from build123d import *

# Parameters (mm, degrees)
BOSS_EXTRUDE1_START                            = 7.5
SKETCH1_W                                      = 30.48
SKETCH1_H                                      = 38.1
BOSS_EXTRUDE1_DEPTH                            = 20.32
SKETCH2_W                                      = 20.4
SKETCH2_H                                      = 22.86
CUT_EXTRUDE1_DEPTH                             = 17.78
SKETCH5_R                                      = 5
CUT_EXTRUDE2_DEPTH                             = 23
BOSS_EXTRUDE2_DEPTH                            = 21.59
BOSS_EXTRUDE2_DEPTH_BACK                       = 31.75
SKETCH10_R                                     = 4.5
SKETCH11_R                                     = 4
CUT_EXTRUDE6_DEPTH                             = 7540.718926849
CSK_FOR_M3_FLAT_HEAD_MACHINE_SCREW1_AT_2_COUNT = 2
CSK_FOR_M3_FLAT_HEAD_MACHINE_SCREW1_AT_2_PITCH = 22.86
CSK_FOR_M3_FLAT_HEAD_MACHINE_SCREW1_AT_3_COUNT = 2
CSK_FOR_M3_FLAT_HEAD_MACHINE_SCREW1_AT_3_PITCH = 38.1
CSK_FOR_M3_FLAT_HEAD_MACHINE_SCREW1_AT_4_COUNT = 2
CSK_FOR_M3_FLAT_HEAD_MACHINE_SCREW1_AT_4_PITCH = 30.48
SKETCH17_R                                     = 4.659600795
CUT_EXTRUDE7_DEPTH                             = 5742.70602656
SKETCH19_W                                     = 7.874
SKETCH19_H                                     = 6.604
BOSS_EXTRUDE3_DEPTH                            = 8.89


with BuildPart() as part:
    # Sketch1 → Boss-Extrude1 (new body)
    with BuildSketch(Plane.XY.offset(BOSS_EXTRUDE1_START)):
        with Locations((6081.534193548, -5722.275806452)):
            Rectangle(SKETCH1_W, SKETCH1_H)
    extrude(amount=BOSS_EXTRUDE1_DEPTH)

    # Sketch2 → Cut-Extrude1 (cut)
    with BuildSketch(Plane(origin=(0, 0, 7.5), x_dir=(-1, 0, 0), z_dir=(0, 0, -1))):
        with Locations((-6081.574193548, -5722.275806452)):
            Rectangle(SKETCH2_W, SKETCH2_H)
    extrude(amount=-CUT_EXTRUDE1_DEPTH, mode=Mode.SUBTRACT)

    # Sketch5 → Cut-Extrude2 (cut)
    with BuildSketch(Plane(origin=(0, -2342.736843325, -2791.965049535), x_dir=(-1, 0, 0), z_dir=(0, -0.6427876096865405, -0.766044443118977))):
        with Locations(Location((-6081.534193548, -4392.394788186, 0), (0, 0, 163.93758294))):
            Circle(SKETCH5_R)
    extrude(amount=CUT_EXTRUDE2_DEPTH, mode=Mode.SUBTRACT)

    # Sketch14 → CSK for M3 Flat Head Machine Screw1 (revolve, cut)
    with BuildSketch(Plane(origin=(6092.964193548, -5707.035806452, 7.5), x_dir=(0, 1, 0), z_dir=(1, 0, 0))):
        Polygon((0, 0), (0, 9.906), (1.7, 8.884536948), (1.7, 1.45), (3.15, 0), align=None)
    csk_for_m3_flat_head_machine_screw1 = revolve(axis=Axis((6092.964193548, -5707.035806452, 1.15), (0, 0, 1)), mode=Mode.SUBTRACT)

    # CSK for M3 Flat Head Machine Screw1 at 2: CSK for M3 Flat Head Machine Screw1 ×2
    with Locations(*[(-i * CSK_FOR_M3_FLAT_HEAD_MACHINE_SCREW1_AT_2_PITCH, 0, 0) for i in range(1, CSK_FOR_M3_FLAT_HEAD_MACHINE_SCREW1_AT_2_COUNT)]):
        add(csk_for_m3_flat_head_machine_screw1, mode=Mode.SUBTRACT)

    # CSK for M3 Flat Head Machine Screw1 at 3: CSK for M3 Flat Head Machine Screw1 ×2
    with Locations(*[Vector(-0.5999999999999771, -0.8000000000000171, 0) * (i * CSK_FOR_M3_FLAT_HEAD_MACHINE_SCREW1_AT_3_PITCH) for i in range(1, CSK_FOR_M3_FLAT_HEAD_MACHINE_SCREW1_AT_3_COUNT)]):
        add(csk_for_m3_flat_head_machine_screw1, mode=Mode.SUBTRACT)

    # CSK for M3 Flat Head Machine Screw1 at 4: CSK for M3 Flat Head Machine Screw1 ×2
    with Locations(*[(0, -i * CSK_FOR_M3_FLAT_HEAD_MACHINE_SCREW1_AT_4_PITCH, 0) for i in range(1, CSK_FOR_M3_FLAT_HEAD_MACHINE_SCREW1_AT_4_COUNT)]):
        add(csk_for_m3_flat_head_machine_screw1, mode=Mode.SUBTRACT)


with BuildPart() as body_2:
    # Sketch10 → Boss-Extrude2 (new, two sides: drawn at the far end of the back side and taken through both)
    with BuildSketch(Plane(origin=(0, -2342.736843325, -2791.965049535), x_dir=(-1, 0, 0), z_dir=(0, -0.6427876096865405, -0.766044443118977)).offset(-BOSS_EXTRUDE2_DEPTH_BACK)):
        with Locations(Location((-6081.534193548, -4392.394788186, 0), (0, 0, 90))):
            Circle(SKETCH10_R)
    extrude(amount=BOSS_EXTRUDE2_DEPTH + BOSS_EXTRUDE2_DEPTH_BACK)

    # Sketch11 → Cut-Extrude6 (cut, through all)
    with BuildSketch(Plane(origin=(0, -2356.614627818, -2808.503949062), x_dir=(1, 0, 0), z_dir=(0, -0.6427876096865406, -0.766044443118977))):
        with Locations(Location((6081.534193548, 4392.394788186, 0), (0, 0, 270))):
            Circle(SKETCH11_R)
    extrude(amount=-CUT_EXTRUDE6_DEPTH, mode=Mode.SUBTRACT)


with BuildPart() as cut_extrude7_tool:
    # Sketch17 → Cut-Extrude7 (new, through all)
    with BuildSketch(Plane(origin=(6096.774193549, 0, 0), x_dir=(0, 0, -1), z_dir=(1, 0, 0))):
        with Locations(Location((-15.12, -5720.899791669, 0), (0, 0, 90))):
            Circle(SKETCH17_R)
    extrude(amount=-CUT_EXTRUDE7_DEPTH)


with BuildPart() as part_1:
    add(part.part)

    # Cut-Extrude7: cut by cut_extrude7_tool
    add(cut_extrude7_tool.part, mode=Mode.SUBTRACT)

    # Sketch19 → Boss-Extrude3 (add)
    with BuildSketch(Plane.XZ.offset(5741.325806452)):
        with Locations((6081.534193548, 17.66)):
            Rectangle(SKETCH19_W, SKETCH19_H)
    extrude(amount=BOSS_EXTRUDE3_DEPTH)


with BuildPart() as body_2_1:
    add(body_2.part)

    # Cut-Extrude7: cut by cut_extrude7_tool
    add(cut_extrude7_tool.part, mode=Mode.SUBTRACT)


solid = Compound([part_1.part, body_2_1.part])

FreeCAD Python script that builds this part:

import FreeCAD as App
import Part
import Sketcher
from FreeCAD import Vector
Q = App.Units.Quantity

doc = App.newDocument("Part")
body = doc.addObject("PartDesign::Body", "Body")

# Sketch on XY plane
sketch1 = body.newObject("Sketcher::SketchObject", "Sketch")
sketch1.AttachmentSupport = (doc.getObject("XY_Plane"), [""])
sketch1.MapMode = "FlatFace"
sketch1.AttachmentOffset = App.Placement(Vector(0, 0, 7.5), App.Rotation())
sketch1.addGeometry(Part.LineSegment(Vector(6066, -5703, 0), Vector(6066, -5741, 0)), False)
sketch1.addGeometry(Part.LineSegment(Vector(6066, -5741, 0), Vector(6097, -5741, 0)), False)
sketch1.addGeometry(Part.LineSegment(Vector(6097, -5741, 0), Vector(6097, -5703, 0)), False)
sketch1.addGeometry(Part.LineSegment(Vector(6097, -5703, 0), Vector(6066, -5703, 0)), False)
sketch1.addConstraint(Sketcher.Constraint("Coincident", 0, 2, 1, 1))
sketch1.addConstraint(Sketcher.Constraint("Coincident", 1, 2, 2, 1))
sketch1.addConstraint(Sketcher.Constraint("Coincident", 2, 2, 3, 1))
sketch1.addConstraint(Sketcher.Constraint("Coincident", 3, 2, 0, 1))
sketch1.addConstraint(Sketcher.Constraint("Vertical", 0))
sketch1.addConstraint(Sketcher.Constraint("Horizontal", 1))
sketch1.addConstraint(Sketcher.Constraint("Vertical", 2))
sketch1.addConstraint(Sketcher.Constraint("Horizontal", 3))
sketch1.addConstraint(Sketcher.Constraint("DistanceX", 1, 1, 1, 2, Q("1.2 in")))
sketch1.addConstraint(Sketcher.Constraint("DistanceY", 0, 2, 0, 1, Q("1.5 in")))
sketch1.addConstraint(Sketcher.Constraint("DistanceX", -1, 1, 0, 2, Q("6066.294194 mm")))
sketch1.addConstraint(Sketcher.Constraint("DistanceY", 0, 2, -1, 1, Q("5741.325806 mm")))
pad1 = body.newObject("PartDesign::Pad", "Pad")
pad1.Profile = sketch1
pad1.Length = Q("0.8 in")

# Sketch on XY plane
sketch2 = body.newObject("Sketcher::SketchObject", "Sketch001")
sketch2.AttachmentSupport = (doc.getObject("XY_Plane"), [""])
sketch2.MapMode = "FlatFace"
sketch2.AttachmentOffset = App.Placement(Vector(0, 0, 7.5), App.Rotation())
sketch2.addGeometry(Part.LineSegment(Vector(6092, -5711, 0), Vector(6092, -5734, 0)), False)
sketch2.addGeometry(Part.LineSegment(Vector(6092, -5734, 0), Vector(6071, -5734, 0)), False)
sketch2.addGeometry(Part.LineSegment(Vector(6071, -5734, 0), Vector(6071, -5711, 0)), False)
sketch2.addGeometry(Part.LineSegment(Vector(6071, -5711, 0), Vector(6092, -5711, 0)), False)
sketch2.addConstraint(Sketcher.Constraint("Coincident", 0, 2, 1, 1))
sketch2.addConstraint(Sketcher.Constraint("Coincident", 1, 2, 2, 1))
sketch2.addConstraint(Sketcher.Constraint("Coincident", 2, 2, 3, 1))
sketch2.addConstraint(Sketcher.Constraint("Coincident", 3, 2, 0, 1))
sketch2.addConstraint(Sketcher.Constraint("Vertical", 0))
sketch2.addConstraint(Sketcher.Constraint("Horizontal", 1))
sketch2.addConstraint(Sketcher.Constraint("Vertical", 2))
sketch2.addConstraint(Sketcher.Constraint("Horizontal", 3))
sketch2.addConstraint(Sketcher.Constraint("DistanceY", 0, 2, 0, 1, Q("0.9 in")))
sketch2.addConstraint(Sketcher.Constraint("DistanceX", 1, 2, 1, 1, Q("20.4 mm")))
sketch2.addConstraint(Sketcher.Constraint("DistanceX", -1, 1, 0, 2, Q("6091.774194 mm")))
sketch2.addConstraint(Sketcher.Constraint("DistanceY", 0, 2, -1, 1, Q("5733.705806 mm")))
pocket1 = body.newObject("PartDesign::Pocket", "Pocket")
pocket1.Profile = sketch2
pocket1.Length = Q("0.7 in")
pocket1.Reversed = True

# Sketch on an angled plane
sketch3 = body.newObject("Sketcher::SketchObject", "Sketch002")
sketch3.Placement = App.Placement(Vector(0, -2342.736843, -2791.96505), App.Rotation(Vector(-1, 0, 0), Vector(0, 0.766044443, -0.64278761), Vector(0, -0.64278761, -0.766044443), "ZXY"))
sketch3.addGeometry(Part.Circle(Vector(-6082, -4392, 0), Vector(0, 0, 1), 5), False)
sketch3.addConstraint(Sketcher.Constraint("Diameter", 0, Q("10 mm")))
sketch3.addConstraint(Sketcher.Constraint("DistanceY", 0, 3, -1, 1, Q("4392.394789 mm")))
sketch3.addConstraint(Sketcher.Constraint("DistanceX", 0, 3, -1, 1, Q("6081.534194 mm")))
pocket2 = body.newObject("PartDesign::Pocket", "Pocket001")
pocket2.Profile = sketch3
pocket2.Length = 23
pocket2.Reversed = True

# Sketch on YZ plane
sketch4 = body.newObject("Sketcher::SketchObject", "Sketch003")
sketch4.AttachmentSupport = (doc.getObject("YZ_Plane"), [""])
sketch4.MapMode = "FlatFace"
sketch4.AttachmentOffset = App.Placement(Vector(0, 0, 6092.964194), App.Rotation())
sketch4.addGeometry(Part.LineSegment(Vector(-5707, 17.4, 0), Vector(-5707, 7.5, 0)), False)
sketch4.addGeometry(Part.LineSegment(Vector(-5707, 7.5, 0), Vector(-5703.9, 7.5, 0)), False)
sketch4.addGeometry(Part.LineSegment(Vector(-5703.9, 7.5, 0), Vector(-5705.3, 8.9, 0)), False)
sketch4.addGeometry(Part.LineSegment(Vector(-5705.3, 8.9, 0), Vector(-5705.3, 16.4, 0)), False)
sketch4.addGeometry(Part.LineSegment(Vector(-5705.3, 16.4, 0), Vector(-5707, 17.4, 0)), False)
sketch4.addGeometry(Part.LineSegment(Vector(-5707, 7.5, 0), Vector(-5707, 17.4, 0)), True)  # axis
sketch4.addConstraint(Sketcher.Constraint("Coincident", 0, 2, 1, 1))
sketch4.addConstraint(Sketcher.Constraint("Coincident", 1, 2, 2, 1))
sketch4.addConstraint(Sketcher.Constraint("Coincident", 2, 2, 3, 1))
sketch4.addConstraint(Sketcher.Constraint("Coincident", 3, 2, 4, 1))
sketch4.addConstraint(Sketcher.Constraint("Coincident", 4, 2, 0, 1))
sketch4.addConstraint(Sketcher.Constraint("Vertical", 0))
sketch4.addConstraint(Sketcher.Constraint("Horizontal", 1))
sketch4.addConstraint(Sketcher.Constraint("Vertical", 3))
sketch4.addConstraint(Sketcher.Constraint("Vertical", 5))
sketch4.addConstraint(Sketcher.Constraint("Coincident", 5, 1, 0, 2))
sketch4.addConstraint(Sketcher.Constraint("Equal", 0, 5))
sketch4.addConstraint(Sketcher.Constraint("Angle", 2, Q("135 deg")))
sketch4.addConstraint(Sketcher.Constraint("Angle", 4, Q("149 deg")))
sketch4.addConstraint(Sketcher.Constraint("DistanceY", 0, 2, 0, 1, Q("0.39 in")))
sketch4.addConstraint(Sketcher.Constraint("DistanceX", 1, 1, 1, 2, Q("3.15 mm")))
sketch4.addConstraint(Sketcher.Constraint("DistanceY", -1, 1, 0, 2, Q("7.5 mm")))
sketch4.addConstraint(Sketcher.Constraint("DistanceY", -1, 1, 2, 2, Q("8.95 mm")))
sketch4.addConstraint(Sketcher.Constraint("DistanceX", 0, 2, -1, 1, Q("5707.035806 mm")))
groove = body.newObject("PartDesign::Groove", "Groove")
groove.Profile = sketch4
groove.ReferenceAxis = (sketch4, ["Axis0"])
groove.Angle = 360
doc.recompute()

linearpattern = body.newObject("PartDesign::LinearPattern", "LinearPattern")
linearpattern.Originals = [groove]
linearpattern.Direction = (doc.getObject("X_Axis"), [""])
linearpattern.Mode = "offset"
linearpattern.Offset = Q("0.9 in")
linearpattern.Occurrences = 2
linearpattern.Reversed = True
body.Tip = linearpattern
doc.recompute()

datumline = body.newObject("PartDesign::Line", "DatumLine")
datumline.Placement = App.Placement(Vector(0, 0, 0), App.Rotation(Vector(0, 0, 1), Vector(-0.6, -0.8, 0)))
linearpattern2 = body.newObject("PartDesign::LinearPattern", "LinearPattern001")
linearpattern2.Originals = [groove]
linearpattern2.Direction = (datumline, [""])
linearpattern2.Mode = "offset"
linearpattern2.Offset = Q("1.5 in")
linearpattern2.Occurrences = 2
body.Tip = linearpattern2
doc.recompute()

linearpattern3 = body.newObject("PartDesign::LinearPattern", "LinearPattern002")
linearpattern3.Originals = [groove]
linearpattern3.Direction = (doc.getObject("Y_Axis"), [""])
linearpattern3.Mode = "offset"
linearpattern3.Offset = Q("1.2 in")
linearpattern3.Occurrences = 2
linearpattern3.Reversed = True
body.Tip = linearpattern3
body2 = doc.addObject("PartDesign::Body", "Body001")

# Sketch on an angled plane
sketch5 = body2.newObject("Sketcher::SketchObject", "Sketch004")
sketch5.Placement = App.Placement(Vector(0, -2342.736843, -2791.96505), App.Rotation(Vector(-1, 0, 0), Vector(0, 0.766044443, -0.64278761), Vector(0, -0.64278761, -0.766044443), "ZXY"))
sketch5.addGeometry(Part.Circle(Vector(-6081.5, -4392.4, 0), Vector(0, 0, 1), 4.5), False)
sketch5.addConstraint(Sketcher.Constraint("Diameter", 0, Q("9 mm")))
sketch5.addConstraint(Sketcher.Constraint("DistanceY", 0, 3, -1, 1, Q("4392.394789 mm")))
sketch5.addConstraint(Sketcher.Constraint("DistanceX", 0, 3, -1, 1, Q("6081.534194 mm")))
pad2 = body2.newObject("PartDesign::Pad", "Pad001")
pad2.Profile = sketch5
pad2.Type = "TwoLengths"
pad2.Length = Q("0.85 in")
pad2.Length2 = Q("1.25 in")

# Sketch on an angled plane
sketch6 = body2.newObject("Sketcher::SketchObject", "Sketch005")
sketch6.Placement = App.Placement(Vector(0, -2356.614628, -2808.503949), App.Rotation(Vector(1, 0, 0), Vector(0, -0.766044443, 0.64278761), Vector(0, -0.64278761, -0.766044443), "ZXY"))
sketch6.addGeometry(Part.Circle(Vector(6081.5, 4392.4, 0), Vector(0, 0, 1), 4), False)
sketch6.addConstraint(Sketcher.Constraint("Diameter", 0, Q("8 mm")))
sketch6.addConstraint(Sketcher.Constraint("DistanceY", -1, 1, 0, 3, Q("4392.394789 mm")))
sketch6.addConstraint(Sketcher.Constraint("DistanceX", -1, 1, 0, 3, Q("6081.534194 mm")))
pocket3 = body2.newObject("PartDesign::Pocket", "Pocket002")
pocket3.Profile = sketch6
pocket3.Type = "ThroughAll"
body3 = doc.addObject("PartDesign::Body", "Body002")

# Sketch on YZ plane
sketch7 = body3.newObject("Sketcher::SketchObject", "Sketch006")
sketch7.AttachmentSupport = (doc.getObject("YZ_Plane002"), [""])
sketch7.MapMode = "FlatFace"
sketch7.AttachmentOffset = App.Placement(Vector(0, 0, 6096.774194), App.Rotation())
sketch7.addGeometry(Part.Circle(Vector(-5720.899792, 15.12, 0), Vector(0, 0, 1), 4.659601), False)
sketch7.addConstraint(Sketcher.Constraint("Diameter", 0, Q("9.319202 mm")))
sketch7.addConstraint(Sketcher.Constraint("DistanceY", -1, 1, 0, 3, Q("15.12 mm")))
sketch7.addConstraint(Sketcher.Constraint("DistanceX", 0, 3, -1, 1, Q("5720.899792 mm")))
pad3 = body3.newObject("PartDesign::Pad", "Pad002")
pad3.Profile = sketch7
pad3.Length = 5742.706027
pad3.Reversed = True
doc.recompute()

body4 = doc.addObject("PartDesign::Body", "Body003")
body4.BaseFeature = body3
boolean = body.newObject("PartDesign::Boolean", "Boolean")
boolean.Type = "Cut"
boolean.addObjects([body4])
doc.recompute()

# Sketch on XZ plane
sketch8 = body.newObject("Sketcher::SketchObject", "Sketch007")
sketch8.AttachmentSupport = (doc.getObject("XZ_Plane"), [""])
sketch8.MapMode = "FlatFace"
sketch8.AttachmentOffset = App.Placement(Vector(0, 0, 5741.325806), App.Rotation())
sketch8.addGeometry(Part.LineSegment(Vector(6078, 21, 0), Vector(6078, 14, 0)), False)
sketch8.addGeometry(Part.LineSegment(Vector(6078, 14, 0), Vector(6085, 14, 0)), False)
sketch8.addGeometry(Part.LineSegment(Vector(6085, 14, 0), Vector(6085, 21, 0)), False)
sketch8.addGeometry(Part.LineSegment(Vector(6085, 21, 0), Vector(6078, 21, 0)), False)
sketch8.addConstraint(Sketcher.Constraint("Coincident", 0, 2, 1, 1))
sketch8.addConstraint(Sketcher.Constraint("Coincident", 1, 2, 2, 1))
sketch8.addConstraint(Sketcher.Constraint("Coincident", 2, 2, 3, 1))
sketch8.addConstraint(Sketcher.Constraint("Coincident", 3, 2, 0, 1))
sketch8.addConstraint(Sketcher.Constraint("Vertical", 0))
sketch8.addConstraint(Sketcher.Constraint("Horizontal", 1))
sketch8.addConstraint(Sketcher.Constraint("Vertical", 2))
sketch8.addConstraint(Sketcher.Constraint("Horizontal", 3))
sketch8.addConstraint(Sketcher.Constraint("DistanceX", 1, 1, 1, 2, Q("0.31 in")))
sketch8.addConstraint(Sketcher.Constraint("DistanceY", 0, 2, 0, 1, Q("0.26 in")))
sketch8.addConstraint(Sketcher.Constraint("DistanceY", -1, 1, 0, 2, Q("14.358 mm")))
sketch8.addConstraint(Sketcher.Constraint("DistanceX", -1, 1, 0, 2, Q("6077.597194 mm")))
pad4 = body.newObject("PartDesign::Pad", "Pad003")
pad4.Profile = sketch8
pad4.Length = Q("0.35 in")
doc.recompute()

boolean2 = body2.newObject("PartDesign::Boolean", "Boolean001")
boolean2.Type = "Cut"
boolean2.addObjects([body3])

doc.recompute()
